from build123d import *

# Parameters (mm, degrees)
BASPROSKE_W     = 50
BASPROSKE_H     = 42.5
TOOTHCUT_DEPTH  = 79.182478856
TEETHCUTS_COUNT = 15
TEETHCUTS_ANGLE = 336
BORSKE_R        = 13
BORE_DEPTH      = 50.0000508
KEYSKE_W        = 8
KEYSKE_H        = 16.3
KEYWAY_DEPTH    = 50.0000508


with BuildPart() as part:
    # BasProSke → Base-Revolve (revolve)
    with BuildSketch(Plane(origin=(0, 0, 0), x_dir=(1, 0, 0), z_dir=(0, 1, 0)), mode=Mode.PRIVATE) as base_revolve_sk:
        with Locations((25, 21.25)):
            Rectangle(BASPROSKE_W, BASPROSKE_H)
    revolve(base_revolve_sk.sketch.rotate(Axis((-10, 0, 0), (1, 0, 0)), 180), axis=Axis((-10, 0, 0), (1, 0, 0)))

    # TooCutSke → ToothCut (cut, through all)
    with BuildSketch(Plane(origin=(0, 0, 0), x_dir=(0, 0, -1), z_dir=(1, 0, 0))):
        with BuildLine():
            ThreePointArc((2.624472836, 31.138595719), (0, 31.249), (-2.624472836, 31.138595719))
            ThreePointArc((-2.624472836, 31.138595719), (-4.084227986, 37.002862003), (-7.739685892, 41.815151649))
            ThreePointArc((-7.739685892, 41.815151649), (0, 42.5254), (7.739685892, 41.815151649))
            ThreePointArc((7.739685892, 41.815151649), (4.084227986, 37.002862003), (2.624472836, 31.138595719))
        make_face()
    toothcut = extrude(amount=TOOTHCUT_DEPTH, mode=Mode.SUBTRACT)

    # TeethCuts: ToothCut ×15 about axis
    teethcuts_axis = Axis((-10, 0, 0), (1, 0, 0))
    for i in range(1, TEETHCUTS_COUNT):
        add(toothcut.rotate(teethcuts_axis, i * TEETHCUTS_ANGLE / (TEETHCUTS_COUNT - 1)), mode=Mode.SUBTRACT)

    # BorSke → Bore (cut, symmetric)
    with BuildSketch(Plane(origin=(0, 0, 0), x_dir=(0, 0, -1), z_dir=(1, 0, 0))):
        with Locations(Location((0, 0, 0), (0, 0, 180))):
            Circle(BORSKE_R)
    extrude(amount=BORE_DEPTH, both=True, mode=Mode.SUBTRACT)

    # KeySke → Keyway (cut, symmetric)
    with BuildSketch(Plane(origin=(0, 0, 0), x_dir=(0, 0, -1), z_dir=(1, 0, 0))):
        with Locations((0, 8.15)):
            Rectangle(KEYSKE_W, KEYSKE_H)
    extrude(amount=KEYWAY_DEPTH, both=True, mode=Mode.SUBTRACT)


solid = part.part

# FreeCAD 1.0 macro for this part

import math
import FreeCAD as App
import Part
import Sketcher
from FreeCAD import Vector
Q = App.Units.Quantity

doc = App.newDocument("Part")
body = doc.addObject("PartDesign::Body", "Body")

# Sketch on XZ plane
sketch1 = doc.addObject("Sketcher::SketchObject", "Sketch")
body.addObject(sketch1)
sketch1.AttachmentSupport = (doc.XZ_Plane, [""])
sketch1.MapMode = "FlatFace"
sketch1.addGeometry([
    Part.LineSegment(Vector(0, -42, 0), Vector(0, 0, 0)),
    Part.LineSegment(Vector(0, 0, 0), Vector(50, 0, 0)),
    Part.LineSegment(Vector(50, 0, 0), Vector(50, -42, 0)),
    Part.LineSegment(Vector(50, -42, 0), Vector(0, -42, 0)),
], False)
sketch1.addConstraint([
    Sketcher.Constraint("Coincident", 0, 2, 1, 1),
    Sketcher.Constraint("Coincident", 1, 2, 2, 1),
    Sketcher.Constraint("Coincident", 2, 2, 3, 1),
    Sketcher.Constraint("Coincident", 3, 2, 0, 1),
    Sketcher.Constraint("Vertical", 0),
    Sketcher.Constraint("Horizontal", 1),
    Sketcher.Constraint("Vertical", 2),
    Sketcher.Constraint("Horizontal", 3),
    Sketcher.Constraint("Coincident", 0, 2, -1, 1),
    Sketcher.Constraint("DistanceX", 1, 1, 1, 2, Q("50 mm")),
    Sketcher.Constraint("DistanceY", 0, 1, 0, 2, Q("42.5 mm")),
])
revolution = doc.addObject("PartDesign::Revolution", "Revolution")
body.addObject(revolution)
revolution.Profile = sketch1
revolution.ReferenceAxis = (sketch1, ["H_Axis"])
revolution.Angle = 360

# Sketch on YZ plane
sketch2 = doc.addObject("Sketcher::SketchObject", "Sketch001")
body.addObject(sketch2)
sketch2.AttachmentSupport = (doc.YZ_Plane, [""])
sketch2.MapMode = "FlatFace"
sketch2.addGeometry([
    Part.ArcOfCircle(Part.Circle(Vector(0, 0, 0), Vector(0, 0, 1), 31), math.radians(-4.82), math.radians(4.82)),
    Part.ArcOfCircle(Part.Circle(Vector(31, -18, 0), Vector(0, 0, 1), 15), math.radians(41), math.radians(88)),
    Part.ArcOfCircle(Part.Circle(Vector(0, 0, 0), Vector(0, 0, 1), 43), math.radians(-10), math.radians(10)),
    Part.ArcOfCircle(Part.Circle(Vector(31, 18, 0), Vector(0, 0, 1), 15), math.radians(-88), math.radians(-41)),
], False)
sketch2.addConstraint([
    Sketcher.Constraint("Coincident", 0, 1, 1, 2),
    Sketcher.Constraint("Coincident", 1, 1, 2, 1),
    Sketcher.Constraint("Coincident", 2, 2, 3, 2),
    Sketcher.Constraint("Coincident", 3, 1, 0, 2),
    Sketcher.Constraint("Coincident", 0, 3, -1, 1),
    Sketcher.Constraint("Coincident", 2, 3, -1, 1),
    Sketcher.Constraint("Equal", 1, 3),
    Sketcher.Constraint("Symmetric", 1, 3, 3, 3, -1),
    Sketcher.Constraint("Radius", 1, Q("15 mm")),
    Sketcher.Constraint("Radius", 0, Q("31.249 mm")),
    Sketcher.Constraint("Radius", 2, Q("42.5254 mm")),
    Sketcher.Constraint("DistanceX", -1, 1, 1, 1, Q("41.815152 mm")),
    Sketcher.Constraint("DistanceX", 1, 3, 0, 1, Q("0.61688 mm")),
])
pocket1 = doc.addObject("PartDesign::Pocket", "Pocket")
body.addObject(pocket1)
pocket1.Profile = sketch2
pocket1.Type = "ThroughAll"
pocket1.Reversed = True
doc.recompute()

polarpattern = doc.addObject("PartDesign::PolarPattern", "PolarPattern")
body.addObject(polarpattern)
polarpattern.Originals = [pocket1]
polarpattern.Axis = (doc.X_Axis, [""])
polarpattern.Angle = 360
polarpattern.Occurrences = 15
body.Tip = polarpattern

# Sketch on YZ plane
sketch3 = doc.addObject("Sketcher::SketchObject", "Sketch002")
body.addObject(sketch3)
sketch3.AttachmentSupport = (doc.YZ_Plane, [""])
sketch3.MapMode = "FlatFace"
sketch3.addGeometry(Part.Circle(Vector(0, 0, 0), Vector(0, 0, 1), 13), False)
sketch3.addConstraint([
    Sketcher.Constraint("Coincident", 0, 3, -1, 1),
    Sketcher.Constraint("Diameter", 0, Q("26 mm")),
])
pocket2 = doc.addObject("PartDesign::Pocket", "Pocket001")
body.addObject(pocket2)
pocket2.Profile = sketch3
pocket2.Length = 100.000102
pocket2.Midplane = True

# Sketch on YZ plane
sketch4 = doc.addObject("Sketcher::SketchObject", "Sketch003")
body.addObject(sketch4)
sketch4.AttachmentSupport = (doc.YZ_Plane, [""])
sketch4.MapMode = "FlatFace"
sketch4.addGeometry([
    Part.LineSegment(Vector(16, 4, 0), Vector(0, 4, 0)),
    Part.LineSegment(Vector(0, 4, 0), Vector(0, -4, 0)),
    Part.LineSegment(Vector(0, -4, 0), Vector(16, -4, 0)),
    Part.LineSegment(Vector(16, -4, 0), Vector(16, 4, 0)),
], False)
sketch4.addConstraint([
    Sketcher.Constraint("Coincident", 0, 2, 1, 1),
    Sketcher.Constraint("Coincident", 1, 2, 2, 1),
    Sketcher.Constraint("Coincident", 2, 2, 3, 1),
    Sketcher.Constraint("Coincident", 3, 2, 0, 1),
    Sketcher.Constraint("Horizontal", 0),
    Sketcher.Constraint("Vertical", 1),
    Sketcher.Constraint("Horizontal", 2),
    Sketcher.Constraint("Vertical", 3),
    Sketcher.Constraint("Symmetric", 0, 2, 1, 2, -1, 1),
    Sketcher.Constraint("DistanceY", 1, 2, 1, 1, Q("8 mm")),
    Sketcher.Constraint("DistanceX", 0, 2, 0, 1, Q("16.3 mm")),
])
pocket3 = doc.addObject("PartDesign::Pocket", "Pocket002")
body.addObject(pocket3)
pocket3.Profile = sketch4
pocket3.Length = 100.000102
pocket3.Midplane = True

doc.recompute()
